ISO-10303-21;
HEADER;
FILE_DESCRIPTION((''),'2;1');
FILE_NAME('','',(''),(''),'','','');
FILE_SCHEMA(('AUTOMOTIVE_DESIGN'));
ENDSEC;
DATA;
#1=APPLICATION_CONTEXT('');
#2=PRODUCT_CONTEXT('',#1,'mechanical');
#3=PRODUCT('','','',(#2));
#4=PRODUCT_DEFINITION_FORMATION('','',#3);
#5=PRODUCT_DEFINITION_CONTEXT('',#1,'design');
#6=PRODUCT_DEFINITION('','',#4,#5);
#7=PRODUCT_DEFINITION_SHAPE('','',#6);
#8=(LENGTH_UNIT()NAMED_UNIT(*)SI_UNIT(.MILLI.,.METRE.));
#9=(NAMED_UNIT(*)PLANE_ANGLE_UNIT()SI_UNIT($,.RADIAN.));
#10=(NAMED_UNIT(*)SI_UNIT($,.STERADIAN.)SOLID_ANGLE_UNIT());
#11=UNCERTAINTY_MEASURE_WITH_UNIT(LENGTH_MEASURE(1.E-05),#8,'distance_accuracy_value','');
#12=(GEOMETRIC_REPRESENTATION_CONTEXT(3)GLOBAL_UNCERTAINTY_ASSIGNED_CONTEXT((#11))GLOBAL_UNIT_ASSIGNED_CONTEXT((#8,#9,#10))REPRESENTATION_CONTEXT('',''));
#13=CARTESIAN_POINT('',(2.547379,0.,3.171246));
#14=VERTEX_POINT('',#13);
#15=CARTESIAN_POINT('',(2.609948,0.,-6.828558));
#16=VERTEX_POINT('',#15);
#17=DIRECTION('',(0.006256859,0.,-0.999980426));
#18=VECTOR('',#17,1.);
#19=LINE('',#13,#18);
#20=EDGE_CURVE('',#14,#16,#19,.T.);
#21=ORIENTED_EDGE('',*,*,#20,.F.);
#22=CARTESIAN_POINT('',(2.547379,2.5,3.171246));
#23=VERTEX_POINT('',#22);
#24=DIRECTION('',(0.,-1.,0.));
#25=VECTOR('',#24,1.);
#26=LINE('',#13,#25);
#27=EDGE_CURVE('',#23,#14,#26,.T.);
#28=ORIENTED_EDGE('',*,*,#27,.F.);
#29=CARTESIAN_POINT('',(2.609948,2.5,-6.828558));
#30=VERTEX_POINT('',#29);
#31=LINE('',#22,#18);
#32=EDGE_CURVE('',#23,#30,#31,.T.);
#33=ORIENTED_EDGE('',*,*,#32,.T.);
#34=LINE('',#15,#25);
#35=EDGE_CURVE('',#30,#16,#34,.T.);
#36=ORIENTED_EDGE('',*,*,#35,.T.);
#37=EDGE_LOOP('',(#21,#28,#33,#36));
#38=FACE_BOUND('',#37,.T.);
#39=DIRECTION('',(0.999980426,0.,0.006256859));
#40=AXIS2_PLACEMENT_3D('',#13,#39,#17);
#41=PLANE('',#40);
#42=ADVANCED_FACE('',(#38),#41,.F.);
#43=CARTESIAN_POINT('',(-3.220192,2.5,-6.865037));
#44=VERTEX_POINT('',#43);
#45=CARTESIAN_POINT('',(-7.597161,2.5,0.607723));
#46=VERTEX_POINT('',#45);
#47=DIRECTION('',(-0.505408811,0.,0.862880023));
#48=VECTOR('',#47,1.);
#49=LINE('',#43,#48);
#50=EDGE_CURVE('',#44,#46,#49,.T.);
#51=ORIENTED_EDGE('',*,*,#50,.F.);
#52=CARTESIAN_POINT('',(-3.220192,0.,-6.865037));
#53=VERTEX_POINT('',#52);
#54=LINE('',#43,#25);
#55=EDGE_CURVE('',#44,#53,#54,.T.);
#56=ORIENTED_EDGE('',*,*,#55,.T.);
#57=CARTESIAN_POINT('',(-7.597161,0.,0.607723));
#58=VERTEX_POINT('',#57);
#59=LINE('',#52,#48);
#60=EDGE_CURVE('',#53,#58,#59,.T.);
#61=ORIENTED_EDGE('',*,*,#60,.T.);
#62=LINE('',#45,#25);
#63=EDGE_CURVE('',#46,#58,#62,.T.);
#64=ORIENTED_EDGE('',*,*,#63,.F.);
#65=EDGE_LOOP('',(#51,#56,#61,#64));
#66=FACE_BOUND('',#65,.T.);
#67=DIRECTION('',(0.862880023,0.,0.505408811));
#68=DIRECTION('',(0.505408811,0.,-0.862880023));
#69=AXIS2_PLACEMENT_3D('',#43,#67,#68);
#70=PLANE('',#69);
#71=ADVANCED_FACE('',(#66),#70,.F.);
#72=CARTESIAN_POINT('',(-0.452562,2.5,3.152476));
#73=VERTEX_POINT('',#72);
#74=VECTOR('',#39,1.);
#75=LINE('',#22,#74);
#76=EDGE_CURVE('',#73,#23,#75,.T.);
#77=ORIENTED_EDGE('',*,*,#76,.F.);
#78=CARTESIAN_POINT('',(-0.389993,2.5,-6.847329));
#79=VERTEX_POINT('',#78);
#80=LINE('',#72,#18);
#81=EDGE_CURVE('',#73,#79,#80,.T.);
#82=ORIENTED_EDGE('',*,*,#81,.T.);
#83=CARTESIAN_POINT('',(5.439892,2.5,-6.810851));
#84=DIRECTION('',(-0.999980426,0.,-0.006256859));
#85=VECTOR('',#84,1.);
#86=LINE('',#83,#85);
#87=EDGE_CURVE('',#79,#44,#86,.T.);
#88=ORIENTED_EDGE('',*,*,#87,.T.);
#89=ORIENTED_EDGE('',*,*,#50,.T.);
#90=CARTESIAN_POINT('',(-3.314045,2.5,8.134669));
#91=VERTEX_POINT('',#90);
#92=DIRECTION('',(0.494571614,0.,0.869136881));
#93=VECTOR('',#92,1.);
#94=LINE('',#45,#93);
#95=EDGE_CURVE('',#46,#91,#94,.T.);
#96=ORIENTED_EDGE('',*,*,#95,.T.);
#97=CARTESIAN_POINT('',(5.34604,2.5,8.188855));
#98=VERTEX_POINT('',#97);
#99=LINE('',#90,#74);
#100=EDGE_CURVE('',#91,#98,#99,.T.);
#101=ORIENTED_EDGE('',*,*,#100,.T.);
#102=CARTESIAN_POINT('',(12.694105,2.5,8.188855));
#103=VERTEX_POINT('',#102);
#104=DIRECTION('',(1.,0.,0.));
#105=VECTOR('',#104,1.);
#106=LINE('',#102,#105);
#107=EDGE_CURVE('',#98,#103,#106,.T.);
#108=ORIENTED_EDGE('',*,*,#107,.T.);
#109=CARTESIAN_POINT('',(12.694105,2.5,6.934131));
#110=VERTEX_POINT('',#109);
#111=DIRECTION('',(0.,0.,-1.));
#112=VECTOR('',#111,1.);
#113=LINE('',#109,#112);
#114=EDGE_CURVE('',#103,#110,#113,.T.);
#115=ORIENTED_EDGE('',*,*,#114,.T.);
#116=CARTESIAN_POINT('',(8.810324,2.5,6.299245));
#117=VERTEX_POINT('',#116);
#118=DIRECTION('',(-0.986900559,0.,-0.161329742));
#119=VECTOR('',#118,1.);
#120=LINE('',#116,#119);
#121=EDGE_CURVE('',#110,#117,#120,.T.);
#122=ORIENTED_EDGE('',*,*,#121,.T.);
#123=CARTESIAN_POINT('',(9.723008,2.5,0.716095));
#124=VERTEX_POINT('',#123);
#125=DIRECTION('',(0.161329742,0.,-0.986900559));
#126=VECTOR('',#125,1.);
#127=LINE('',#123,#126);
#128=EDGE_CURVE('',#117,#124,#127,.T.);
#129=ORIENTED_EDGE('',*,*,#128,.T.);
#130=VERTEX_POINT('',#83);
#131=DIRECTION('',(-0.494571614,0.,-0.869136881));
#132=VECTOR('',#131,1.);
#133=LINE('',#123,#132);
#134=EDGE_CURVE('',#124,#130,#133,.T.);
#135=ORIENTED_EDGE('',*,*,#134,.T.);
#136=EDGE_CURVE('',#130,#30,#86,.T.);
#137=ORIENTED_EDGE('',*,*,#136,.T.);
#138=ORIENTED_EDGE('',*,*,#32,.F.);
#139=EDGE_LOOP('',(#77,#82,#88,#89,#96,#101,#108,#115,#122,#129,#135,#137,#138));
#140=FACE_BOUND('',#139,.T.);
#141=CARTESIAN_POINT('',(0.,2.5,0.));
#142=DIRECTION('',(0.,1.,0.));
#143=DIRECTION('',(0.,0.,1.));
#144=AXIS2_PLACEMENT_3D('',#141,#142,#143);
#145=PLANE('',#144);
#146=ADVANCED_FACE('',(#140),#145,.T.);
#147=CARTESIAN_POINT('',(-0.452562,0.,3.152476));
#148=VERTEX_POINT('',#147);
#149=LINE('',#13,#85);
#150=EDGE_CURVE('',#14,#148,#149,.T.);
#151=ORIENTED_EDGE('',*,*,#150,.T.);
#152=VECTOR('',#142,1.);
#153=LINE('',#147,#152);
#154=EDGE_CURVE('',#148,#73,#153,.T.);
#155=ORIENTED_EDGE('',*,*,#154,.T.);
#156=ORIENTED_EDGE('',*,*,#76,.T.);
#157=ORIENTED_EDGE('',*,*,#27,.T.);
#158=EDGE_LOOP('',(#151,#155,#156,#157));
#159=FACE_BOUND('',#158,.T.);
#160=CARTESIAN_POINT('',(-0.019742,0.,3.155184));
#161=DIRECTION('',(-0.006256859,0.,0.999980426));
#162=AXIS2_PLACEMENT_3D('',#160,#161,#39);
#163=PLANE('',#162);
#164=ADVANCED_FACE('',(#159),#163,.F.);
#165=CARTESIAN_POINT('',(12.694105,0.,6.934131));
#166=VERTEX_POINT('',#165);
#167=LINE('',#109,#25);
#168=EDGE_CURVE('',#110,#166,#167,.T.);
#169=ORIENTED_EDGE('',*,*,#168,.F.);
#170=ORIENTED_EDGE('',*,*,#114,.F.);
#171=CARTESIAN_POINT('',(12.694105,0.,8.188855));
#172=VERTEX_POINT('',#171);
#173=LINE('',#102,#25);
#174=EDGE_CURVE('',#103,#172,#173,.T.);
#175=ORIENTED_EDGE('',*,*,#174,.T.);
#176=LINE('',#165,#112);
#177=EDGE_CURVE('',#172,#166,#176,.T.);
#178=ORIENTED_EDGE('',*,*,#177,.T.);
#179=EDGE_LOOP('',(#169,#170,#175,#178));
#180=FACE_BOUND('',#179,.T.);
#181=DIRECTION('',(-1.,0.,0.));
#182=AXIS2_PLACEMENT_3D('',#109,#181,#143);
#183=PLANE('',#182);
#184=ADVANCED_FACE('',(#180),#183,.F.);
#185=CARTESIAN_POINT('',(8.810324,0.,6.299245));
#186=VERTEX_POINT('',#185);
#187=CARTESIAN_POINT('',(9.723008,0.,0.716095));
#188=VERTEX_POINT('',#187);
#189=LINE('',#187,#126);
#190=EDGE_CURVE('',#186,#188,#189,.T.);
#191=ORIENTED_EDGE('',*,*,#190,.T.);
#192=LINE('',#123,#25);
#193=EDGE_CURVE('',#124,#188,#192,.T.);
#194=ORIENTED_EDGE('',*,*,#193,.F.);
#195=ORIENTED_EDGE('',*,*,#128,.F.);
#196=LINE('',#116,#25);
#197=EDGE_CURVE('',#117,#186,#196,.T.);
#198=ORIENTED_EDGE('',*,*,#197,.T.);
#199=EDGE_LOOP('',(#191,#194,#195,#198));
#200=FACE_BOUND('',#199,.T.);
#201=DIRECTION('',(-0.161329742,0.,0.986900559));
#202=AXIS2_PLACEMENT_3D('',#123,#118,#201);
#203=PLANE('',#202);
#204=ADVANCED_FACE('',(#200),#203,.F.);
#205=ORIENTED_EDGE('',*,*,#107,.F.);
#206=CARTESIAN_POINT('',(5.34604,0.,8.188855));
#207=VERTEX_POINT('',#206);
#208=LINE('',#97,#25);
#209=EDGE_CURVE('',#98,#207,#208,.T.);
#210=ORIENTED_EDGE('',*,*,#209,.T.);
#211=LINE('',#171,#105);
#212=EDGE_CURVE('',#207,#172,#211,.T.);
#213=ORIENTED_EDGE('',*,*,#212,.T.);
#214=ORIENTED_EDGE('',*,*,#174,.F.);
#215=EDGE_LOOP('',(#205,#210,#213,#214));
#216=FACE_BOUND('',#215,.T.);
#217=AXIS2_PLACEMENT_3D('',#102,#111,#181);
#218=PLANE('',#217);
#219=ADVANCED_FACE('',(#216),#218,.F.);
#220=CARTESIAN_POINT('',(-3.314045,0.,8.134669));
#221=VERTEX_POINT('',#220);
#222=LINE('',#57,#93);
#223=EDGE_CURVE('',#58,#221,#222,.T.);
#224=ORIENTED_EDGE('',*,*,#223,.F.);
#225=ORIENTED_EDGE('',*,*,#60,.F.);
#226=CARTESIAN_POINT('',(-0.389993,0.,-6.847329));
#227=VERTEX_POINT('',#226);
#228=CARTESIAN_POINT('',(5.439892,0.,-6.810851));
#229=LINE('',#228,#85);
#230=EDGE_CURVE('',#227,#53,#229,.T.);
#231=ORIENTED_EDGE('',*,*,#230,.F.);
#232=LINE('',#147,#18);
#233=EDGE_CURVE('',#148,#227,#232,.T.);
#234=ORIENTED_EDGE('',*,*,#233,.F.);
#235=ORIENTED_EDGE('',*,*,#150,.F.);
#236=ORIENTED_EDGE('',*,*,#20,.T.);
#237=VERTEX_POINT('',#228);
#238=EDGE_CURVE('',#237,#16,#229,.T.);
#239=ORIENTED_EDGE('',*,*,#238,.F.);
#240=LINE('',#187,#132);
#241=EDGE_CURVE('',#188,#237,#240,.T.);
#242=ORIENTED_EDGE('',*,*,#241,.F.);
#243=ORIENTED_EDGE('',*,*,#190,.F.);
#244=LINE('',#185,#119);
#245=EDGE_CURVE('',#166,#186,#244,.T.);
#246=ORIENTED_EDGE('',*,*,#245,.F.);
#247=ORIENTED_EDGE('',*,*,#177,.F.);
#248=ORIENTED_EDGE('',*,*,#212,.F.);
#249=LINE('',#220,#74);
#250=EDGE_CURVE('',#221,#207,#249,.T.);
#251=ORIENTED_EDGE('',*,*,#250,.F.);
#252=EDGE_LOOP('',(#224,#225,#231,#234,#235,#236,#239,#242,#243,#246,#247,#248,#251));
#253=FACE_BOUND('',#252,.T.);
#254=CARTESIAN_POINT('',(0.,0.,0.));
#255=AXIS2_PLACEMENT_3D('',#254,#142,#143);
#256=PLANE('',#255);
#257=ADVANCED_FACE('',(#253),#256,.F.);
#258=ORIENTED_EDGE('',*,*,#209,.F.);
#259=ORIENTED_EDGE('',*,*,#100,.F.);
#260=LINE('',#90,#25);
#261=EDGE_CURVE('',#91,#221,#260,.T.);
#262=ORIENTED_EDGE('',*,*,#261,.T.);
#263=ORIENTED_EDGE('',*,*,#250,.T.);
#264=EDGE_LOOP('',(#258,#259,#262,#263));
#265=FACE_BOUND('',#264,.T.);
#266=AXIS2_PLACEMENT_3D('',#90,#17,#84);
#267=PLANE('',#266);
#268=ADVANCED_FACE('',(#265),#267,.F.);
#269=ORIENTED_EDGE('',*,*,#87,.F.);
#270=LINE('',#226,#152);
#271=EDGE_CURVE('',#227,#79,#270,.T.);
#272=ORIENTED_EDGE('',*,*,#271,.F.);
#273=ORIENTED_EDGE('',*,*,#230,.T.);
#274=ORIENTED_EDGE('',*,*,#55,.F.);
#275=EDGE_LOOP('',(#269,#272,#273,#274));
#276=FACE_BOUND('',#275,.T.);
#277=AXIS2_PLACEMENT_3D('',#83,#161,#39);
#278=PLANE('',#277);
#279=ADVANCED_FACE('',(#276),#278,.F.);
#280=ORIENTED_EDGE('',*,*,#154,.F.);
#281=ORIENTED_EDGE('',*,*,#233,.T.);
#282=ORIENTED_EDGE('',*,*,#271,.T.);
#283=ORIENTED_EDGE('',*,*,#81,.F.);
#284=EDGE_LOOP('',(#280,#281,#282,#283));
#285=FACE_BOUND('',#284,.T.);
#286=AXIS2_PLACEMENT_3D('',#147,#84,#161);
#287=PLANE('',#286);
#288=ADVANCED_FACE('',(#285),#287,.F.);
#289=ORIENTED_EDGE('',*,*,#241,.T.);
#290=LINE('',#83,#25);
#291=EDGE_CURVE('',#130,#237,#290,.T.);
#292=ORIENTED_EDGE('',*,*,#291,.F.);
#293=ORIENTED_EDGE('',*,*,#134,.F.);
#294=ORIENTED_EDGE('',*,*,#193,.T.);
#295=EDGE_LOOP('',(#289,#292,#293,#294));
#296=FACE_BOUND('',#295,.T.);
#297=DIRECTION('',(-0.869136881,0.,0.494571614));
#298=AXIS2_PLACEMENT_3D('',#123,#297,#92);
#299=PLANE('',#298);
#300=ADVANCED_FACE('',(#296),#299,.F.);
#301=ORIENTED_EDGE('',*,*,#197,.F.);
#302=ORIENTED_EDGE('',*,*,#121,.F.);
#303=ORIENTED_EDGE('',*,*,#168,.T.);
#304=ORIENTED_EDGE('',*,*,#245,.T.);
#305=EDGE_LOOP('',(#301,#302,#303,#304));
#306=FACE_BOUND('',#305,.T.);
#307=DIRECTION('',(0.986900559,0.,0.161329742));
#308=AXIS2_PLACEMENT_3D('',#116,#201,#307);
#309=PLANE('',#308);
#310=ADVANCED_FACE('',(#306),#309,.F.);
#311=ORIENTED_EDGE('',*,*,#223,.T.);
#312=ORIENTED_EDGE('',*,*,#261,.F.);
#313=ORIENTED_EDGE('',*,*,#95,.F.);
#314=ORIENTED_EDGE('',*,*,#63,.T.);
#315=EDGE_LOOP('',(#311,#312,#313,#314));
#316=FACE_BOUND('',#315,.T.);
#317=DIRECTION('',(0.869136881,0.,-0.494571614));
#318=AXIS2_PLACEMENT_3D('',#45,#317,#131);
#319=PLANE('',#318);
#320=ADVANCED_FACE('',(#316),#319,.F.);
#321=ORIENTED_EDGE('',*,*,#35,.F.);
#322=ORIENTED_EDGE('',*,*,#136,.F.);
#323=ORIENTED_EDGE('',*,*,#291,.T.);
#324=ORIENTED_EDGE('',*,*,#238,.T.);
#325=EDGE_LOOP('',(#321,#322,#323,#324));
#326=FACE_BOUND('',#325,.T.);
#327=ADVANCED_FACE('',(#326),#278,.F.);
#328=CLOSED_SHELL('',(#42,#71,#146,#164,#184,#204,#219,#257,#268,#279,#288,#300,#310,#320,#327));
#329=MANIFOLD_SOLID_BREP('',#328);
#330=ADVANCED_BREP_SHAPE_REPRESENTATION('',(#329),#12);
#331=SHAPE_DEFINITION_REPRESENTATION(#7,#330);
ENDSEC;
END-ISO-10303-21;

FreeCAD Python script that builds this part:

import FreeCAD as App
import Part
import Sketcher
from FreeCAD import Vector


def add_polygon(sketch, points):
    """Adds a closed chain of lines whose ends are joined by coincident constraints."""
    first, n = sketch.GeometryCount, len(points)
    for a, b in zip(points, points[1:] + points[:1]):
        sketch.addGeometry(Part.LineSegment(App.Vector(*a, 0), App.Vector(*b, 0)), False)
    for i in range(n):
        sketch.addConstraint(Sketcher.Constraint("Coincident", first + i, 2, first + (i + 1) % n, 1))

doc = App.newDocument("Part")
body = doc.addObject("PartDesign::Body", "Body")

# Sketch on XZ plane
sketch1 = doc.addObject("Sketcher::SketchObject", "Sketch")
body.addObject(sketch1)
sketch1.AttachmentSupport = (doc.XZ_Plane, [""])
sketch1.MapMode = "FlatFace"
add_polygon(sketch1, [(12.7, 8.2), (12.7, 6.9), (8.8, 6.3), (9.7, 0.7), (5.4, -6.8), (-3.2, -6.9), (-7.6, 0.6), (-3.3, 8.1), (5.3, 8.2)])  # lines 0-8
sketch1.addConstraint([
    Sketcher.Constraint("Vertical", 0),
    Sketcher.Constraint("Horizontal", 8),
    Sketcher.Constraint("Perpendicular", 1, 2),
    Sketcher.Constraint("Parallel", 3, 6),
    Sketcher.Constraint("Parallel", 4, 7),
    Sketcher.Constraint("Equal", 3, 4),
    Sketcher.Constraint("Equal", 4, 5),
    Sketcher.Constraint("Equal", 5, 6),
    Sketcher.Constraint("Equal", 6, 7),
    Sketcher.Constraint("DistanceX", 4, 2, 2, 2, 12.9432),
    Sketcher.Constraint("Distance", 1, 3.935331),
    Sketcher.Constraint("DistanceX", 8, 1, 8, 2, 7.348066),
    Sketcher.Constraint("DistanceY", 0, 2, 0, 1, 1.254724),
    Sketcher.Constraint("DistanceY", -1, 1, 0, 2, 6.934131),
    Sketcher.Constraint("DistanceX", -1, 1, 2, 2, 9.723008),
    Sketcher.Constraint("DistanceY", 3, 2, -1, 1, 6.810851),
    Sketcher.Constraint("DistanceX", 5, 2, -1, 1, 7.597161),
    Sketcher.Constraint("DistanceY", -1, 1, 6, 2, 8.134669),
])
pad1 = doc.addObject("PartDesign::Pad", "Pad")
body.addObject(pad1)
pad1.Profile = sketch1
pad1.Length = 2.5
pad1.Reversed = True

# Sketch on an angled plane
sketch2 = doc.addObject("Sketcher::SketchObject", "Sketch001")
body.addObject(sketch2)
sketch2.Placement = App.Placement(Vector(0.042827, 0, -6.844621), App.Rotation(Vector(-0.999980426, 0, -0.006256859), Vector(0, 1.000000001, 0), Vector(0.006256859, 0, -0.999980426), "ZXY"))
add_polygon(sketch2, [(-2.6, 2.5), (-2.6, 0), (0.4, 0), (0.4, 2.5)])  # lines 0-3
sketch2.addConstraint([
    Sketcher.Constraint("Vertical", 0),
    Sketcher.Constraint("Horizontal", 1),
    Sketcher.Constraint("Vertical", 2),
    Sketcher.Constraint("Horizontal", 3),
    Sketcher.Constraint("PointOnObject", 0, 2, -1),
    Sketcher.Constraint("DistanceX", 1, 1, 1, 2, 3.0),
    Sketcher.Constraint("DistanceY", 0, 2, 0, 1, 2.5),
    Sketcher.Constraint("DistanceX", 0, 2, -1, 1, 2.567171),
])
pocket1 = doc.addObject("PartDesign::Pocket", "Pocket")
body.addObject(pocket1)
pocket1.Profile = sketch2
pocket1.Length = 10

doc.recompute()
